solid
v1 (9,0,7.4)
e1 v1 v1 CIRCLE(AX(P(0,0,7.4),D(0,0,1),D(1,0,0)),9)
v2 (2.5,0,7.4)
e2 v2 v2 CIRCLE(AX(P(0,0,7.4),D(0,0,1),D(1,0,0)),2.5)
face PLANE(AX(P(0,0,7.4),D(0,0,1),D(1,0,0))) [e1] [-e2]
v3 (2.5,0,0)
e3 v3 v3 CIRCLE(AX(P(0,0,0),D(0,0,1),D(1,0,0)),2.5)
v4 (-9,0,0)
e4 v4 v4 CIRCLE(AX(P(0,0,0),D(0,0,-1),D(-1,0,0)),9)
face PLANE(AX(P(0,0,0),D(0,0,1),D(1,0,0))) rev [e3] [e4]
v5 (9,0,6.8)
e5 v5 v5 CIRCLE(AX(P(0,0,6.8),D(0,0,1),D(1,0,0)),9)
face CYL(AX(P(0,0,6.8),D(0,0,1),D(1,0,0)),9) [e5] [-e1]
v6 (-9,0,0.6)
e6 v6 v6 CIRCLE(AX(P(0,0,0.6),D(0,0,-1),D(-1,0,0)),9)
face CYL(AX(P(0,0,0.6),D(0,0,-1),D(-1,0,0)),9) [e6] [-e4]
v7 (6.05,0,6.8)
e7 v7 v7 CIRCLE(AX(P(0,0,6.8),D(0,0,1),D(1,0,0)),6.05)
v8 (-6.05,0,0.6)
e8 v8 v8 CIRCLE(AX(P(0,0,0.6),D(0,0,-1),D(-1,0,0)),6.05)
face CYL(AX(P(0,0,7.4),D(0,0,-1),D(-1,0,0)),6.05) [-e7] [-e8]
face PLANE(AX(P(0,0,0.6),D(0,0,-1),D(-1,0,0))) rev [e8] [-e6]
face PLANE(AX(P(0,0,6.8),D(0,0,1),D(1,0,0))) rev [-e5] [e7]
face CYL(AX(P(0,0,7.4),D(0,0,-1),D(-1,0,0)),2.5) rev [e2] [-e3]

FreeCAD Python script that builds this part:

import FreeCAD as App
import Part
import Sketcher
from FreeCAD import Vector
Q = App.Units.Quantity

doc = App.newDocument("Part")
params = doc.addObject("Spreadsheet::Sheet", "Params")
for row, (alias, value) in enumerate([
    ("sketch1_diameter", "5 mm"),
    ("sketch1_diameter2", "12.1 mm"),
    ("pad1_length", "7.4 mm"),
    ("sketch2_diameter", "18 mm"),
    ("pad2_length", "0.6 mm"),
    ("sketch3_diameter", "18 mm"),
    ("pad3_length", "0.6 mm"),
    ("sketch4_diameter", "5 mm"),
], start=1):
    params.set(f"A{row}", alias)
    params.set(f"B{row}", "=" + value)
    params.setAlias(f"B{row}", alias)

body = doc.addObject("PartDesign::Body", "Body")

# Sketch on XY plane
sketch1 = doc.addObject("Sketcher::SketchObject", "Sketch")
body.addObject(sketch1)
sketch1.AttachmentSupport = (doc.XY_Plane, [""])
sketch1.MapMode = "FlatFace"
sketch1.addGeometry(Part.Circle(Vector(0, 0, 0), Vector(0, 0, 1), 6.05), False)
sketch1.addGeometry(Part.Circle(Vector(0, 0, 0), Vector(0, 0, 1), 2.5), False)
sketch1.addConstraint(Sketcher.Constraint("Coincident", 0, 3, -1, 1))
sketch1.addConstraint(Sketcher.Constraint("Coincident", 1, 3, -1, 1))
sketch1.addConstraint(Sketcher.Constraint("Diameter", 1, Q("5 mm")))
sketch1.addConstraint(Sketcher.Constraint("Diameter", 0, Q("12.1 mm")))
sketch1.setExpression("Constraints[2]", "Params.sketch1_diameter")
sketch1.setExpression("Constraints[3]", "Params.sketch1_diameter2")
pad1 = doc.addObject("PartDesign::Pad", "Pad")
body.addObject(pad1)
pad1.Profile = sketch1
pad1.setExpression("Length", "Params.pad1_length")

# Sketch on XY plane
sketch2 = doc.addObject("Sketcher::SketchObject", "Sketch001")
body.addObject(sketch2)
sketch2.AttachmentSupport = (doc.XY_Plane, [""])
sketch2.MapMode = "FlatFace"
sketch2.AttachmentOffset = App.Placement(Vector(0, 0, 7.4), App.Rotation())
sketch2.addGeometry(Part.Circle(Vector(0, 0, 0), Vector(0, 0, 1), 9), False)
sketch2.addConstraint(Sketcher.Constraint("Coincident", 0, 3, -1, 1))
sketch2.addConstraint(Sketcher.Constraint("Diameter", 0, Q("18 mm")))
sketch2.setExpression("Constraints[1]", "Params.sketch2_diameter")
pad2 = doc.addObject("PartDesign::Pad", "Pad001")
body.addObject(pad2)
pad2.Profile = sketch2
pad2.setExpression("Length", "Params.pad2_length")
pad2.Reversed = True

# Sketch on XY plane
sketch3 = doc.addObject("Sketcher::SketchObject", "Sketch002")
body.addObject(sketch3)
sketch3.AttachmentSupport = (doc.XY_Plane, [""])
sketch3.MapMode = "FlatFace"
sketch3.AttachmentOffset = App.Placement(Vector(0, 0, 0.6), App.Rotation())
sketch3.addGeometry(Part.Circle(Vector(0, 0, 0), Vector(0, 0, 1), 9), False)
sketch3.addConstraint(Sketcher.Constraint("Coincident", 0, 3, -1, 1))
sketch3.addConstraint(Sketcher.Constraint("Diameter", 0, Q("18 mm")))
sketch3.setExpression("Constraints[1]", "Params.sketch3_diameter")
pad3 = doc.addObject("PartDesign::Pad", "Pad002")
body.addObject(pad3)
pad3.Profile = sketch3
pad3.setExpression("Length", "Params.pad3_length")
pad3.Reversed = True

# Sketch on XY plane
sketch4 = doc.addObject("Sketcher::SketchObject", "Sketch003")
body.addObject(sketch4)
sketch4.AttachmentSupport = (doc.XY_Plane, [""])
sketch4.MapMode = "FlatFace"
sketch4.AttachmentOffset = App.Placement(Vector(0, 0, 7.4), App.Rotation())
sketch4.addGeometry(Part.Circle(Vector(0, 0, 0), Vector(0, 0, 1), 2.5), False)
sketch4.addConstraint(Sketcher.Constraint("Coincident", 0, 3, -1, 1))
sketch4.addConstraint(Sketcher.Constraint("Diameter", 0, Q("5 mm")))
sketch4.setExpression("Constraints[1]", "Params.sketch4_diameter")
pocket1 = doc.addObject("PartDesign::Pocket", "Pocket")
body.addObject(pocket1)
pocket1.Profile = sketch4
pocket1.Type = "ThroughAll"

doc.recompute()
